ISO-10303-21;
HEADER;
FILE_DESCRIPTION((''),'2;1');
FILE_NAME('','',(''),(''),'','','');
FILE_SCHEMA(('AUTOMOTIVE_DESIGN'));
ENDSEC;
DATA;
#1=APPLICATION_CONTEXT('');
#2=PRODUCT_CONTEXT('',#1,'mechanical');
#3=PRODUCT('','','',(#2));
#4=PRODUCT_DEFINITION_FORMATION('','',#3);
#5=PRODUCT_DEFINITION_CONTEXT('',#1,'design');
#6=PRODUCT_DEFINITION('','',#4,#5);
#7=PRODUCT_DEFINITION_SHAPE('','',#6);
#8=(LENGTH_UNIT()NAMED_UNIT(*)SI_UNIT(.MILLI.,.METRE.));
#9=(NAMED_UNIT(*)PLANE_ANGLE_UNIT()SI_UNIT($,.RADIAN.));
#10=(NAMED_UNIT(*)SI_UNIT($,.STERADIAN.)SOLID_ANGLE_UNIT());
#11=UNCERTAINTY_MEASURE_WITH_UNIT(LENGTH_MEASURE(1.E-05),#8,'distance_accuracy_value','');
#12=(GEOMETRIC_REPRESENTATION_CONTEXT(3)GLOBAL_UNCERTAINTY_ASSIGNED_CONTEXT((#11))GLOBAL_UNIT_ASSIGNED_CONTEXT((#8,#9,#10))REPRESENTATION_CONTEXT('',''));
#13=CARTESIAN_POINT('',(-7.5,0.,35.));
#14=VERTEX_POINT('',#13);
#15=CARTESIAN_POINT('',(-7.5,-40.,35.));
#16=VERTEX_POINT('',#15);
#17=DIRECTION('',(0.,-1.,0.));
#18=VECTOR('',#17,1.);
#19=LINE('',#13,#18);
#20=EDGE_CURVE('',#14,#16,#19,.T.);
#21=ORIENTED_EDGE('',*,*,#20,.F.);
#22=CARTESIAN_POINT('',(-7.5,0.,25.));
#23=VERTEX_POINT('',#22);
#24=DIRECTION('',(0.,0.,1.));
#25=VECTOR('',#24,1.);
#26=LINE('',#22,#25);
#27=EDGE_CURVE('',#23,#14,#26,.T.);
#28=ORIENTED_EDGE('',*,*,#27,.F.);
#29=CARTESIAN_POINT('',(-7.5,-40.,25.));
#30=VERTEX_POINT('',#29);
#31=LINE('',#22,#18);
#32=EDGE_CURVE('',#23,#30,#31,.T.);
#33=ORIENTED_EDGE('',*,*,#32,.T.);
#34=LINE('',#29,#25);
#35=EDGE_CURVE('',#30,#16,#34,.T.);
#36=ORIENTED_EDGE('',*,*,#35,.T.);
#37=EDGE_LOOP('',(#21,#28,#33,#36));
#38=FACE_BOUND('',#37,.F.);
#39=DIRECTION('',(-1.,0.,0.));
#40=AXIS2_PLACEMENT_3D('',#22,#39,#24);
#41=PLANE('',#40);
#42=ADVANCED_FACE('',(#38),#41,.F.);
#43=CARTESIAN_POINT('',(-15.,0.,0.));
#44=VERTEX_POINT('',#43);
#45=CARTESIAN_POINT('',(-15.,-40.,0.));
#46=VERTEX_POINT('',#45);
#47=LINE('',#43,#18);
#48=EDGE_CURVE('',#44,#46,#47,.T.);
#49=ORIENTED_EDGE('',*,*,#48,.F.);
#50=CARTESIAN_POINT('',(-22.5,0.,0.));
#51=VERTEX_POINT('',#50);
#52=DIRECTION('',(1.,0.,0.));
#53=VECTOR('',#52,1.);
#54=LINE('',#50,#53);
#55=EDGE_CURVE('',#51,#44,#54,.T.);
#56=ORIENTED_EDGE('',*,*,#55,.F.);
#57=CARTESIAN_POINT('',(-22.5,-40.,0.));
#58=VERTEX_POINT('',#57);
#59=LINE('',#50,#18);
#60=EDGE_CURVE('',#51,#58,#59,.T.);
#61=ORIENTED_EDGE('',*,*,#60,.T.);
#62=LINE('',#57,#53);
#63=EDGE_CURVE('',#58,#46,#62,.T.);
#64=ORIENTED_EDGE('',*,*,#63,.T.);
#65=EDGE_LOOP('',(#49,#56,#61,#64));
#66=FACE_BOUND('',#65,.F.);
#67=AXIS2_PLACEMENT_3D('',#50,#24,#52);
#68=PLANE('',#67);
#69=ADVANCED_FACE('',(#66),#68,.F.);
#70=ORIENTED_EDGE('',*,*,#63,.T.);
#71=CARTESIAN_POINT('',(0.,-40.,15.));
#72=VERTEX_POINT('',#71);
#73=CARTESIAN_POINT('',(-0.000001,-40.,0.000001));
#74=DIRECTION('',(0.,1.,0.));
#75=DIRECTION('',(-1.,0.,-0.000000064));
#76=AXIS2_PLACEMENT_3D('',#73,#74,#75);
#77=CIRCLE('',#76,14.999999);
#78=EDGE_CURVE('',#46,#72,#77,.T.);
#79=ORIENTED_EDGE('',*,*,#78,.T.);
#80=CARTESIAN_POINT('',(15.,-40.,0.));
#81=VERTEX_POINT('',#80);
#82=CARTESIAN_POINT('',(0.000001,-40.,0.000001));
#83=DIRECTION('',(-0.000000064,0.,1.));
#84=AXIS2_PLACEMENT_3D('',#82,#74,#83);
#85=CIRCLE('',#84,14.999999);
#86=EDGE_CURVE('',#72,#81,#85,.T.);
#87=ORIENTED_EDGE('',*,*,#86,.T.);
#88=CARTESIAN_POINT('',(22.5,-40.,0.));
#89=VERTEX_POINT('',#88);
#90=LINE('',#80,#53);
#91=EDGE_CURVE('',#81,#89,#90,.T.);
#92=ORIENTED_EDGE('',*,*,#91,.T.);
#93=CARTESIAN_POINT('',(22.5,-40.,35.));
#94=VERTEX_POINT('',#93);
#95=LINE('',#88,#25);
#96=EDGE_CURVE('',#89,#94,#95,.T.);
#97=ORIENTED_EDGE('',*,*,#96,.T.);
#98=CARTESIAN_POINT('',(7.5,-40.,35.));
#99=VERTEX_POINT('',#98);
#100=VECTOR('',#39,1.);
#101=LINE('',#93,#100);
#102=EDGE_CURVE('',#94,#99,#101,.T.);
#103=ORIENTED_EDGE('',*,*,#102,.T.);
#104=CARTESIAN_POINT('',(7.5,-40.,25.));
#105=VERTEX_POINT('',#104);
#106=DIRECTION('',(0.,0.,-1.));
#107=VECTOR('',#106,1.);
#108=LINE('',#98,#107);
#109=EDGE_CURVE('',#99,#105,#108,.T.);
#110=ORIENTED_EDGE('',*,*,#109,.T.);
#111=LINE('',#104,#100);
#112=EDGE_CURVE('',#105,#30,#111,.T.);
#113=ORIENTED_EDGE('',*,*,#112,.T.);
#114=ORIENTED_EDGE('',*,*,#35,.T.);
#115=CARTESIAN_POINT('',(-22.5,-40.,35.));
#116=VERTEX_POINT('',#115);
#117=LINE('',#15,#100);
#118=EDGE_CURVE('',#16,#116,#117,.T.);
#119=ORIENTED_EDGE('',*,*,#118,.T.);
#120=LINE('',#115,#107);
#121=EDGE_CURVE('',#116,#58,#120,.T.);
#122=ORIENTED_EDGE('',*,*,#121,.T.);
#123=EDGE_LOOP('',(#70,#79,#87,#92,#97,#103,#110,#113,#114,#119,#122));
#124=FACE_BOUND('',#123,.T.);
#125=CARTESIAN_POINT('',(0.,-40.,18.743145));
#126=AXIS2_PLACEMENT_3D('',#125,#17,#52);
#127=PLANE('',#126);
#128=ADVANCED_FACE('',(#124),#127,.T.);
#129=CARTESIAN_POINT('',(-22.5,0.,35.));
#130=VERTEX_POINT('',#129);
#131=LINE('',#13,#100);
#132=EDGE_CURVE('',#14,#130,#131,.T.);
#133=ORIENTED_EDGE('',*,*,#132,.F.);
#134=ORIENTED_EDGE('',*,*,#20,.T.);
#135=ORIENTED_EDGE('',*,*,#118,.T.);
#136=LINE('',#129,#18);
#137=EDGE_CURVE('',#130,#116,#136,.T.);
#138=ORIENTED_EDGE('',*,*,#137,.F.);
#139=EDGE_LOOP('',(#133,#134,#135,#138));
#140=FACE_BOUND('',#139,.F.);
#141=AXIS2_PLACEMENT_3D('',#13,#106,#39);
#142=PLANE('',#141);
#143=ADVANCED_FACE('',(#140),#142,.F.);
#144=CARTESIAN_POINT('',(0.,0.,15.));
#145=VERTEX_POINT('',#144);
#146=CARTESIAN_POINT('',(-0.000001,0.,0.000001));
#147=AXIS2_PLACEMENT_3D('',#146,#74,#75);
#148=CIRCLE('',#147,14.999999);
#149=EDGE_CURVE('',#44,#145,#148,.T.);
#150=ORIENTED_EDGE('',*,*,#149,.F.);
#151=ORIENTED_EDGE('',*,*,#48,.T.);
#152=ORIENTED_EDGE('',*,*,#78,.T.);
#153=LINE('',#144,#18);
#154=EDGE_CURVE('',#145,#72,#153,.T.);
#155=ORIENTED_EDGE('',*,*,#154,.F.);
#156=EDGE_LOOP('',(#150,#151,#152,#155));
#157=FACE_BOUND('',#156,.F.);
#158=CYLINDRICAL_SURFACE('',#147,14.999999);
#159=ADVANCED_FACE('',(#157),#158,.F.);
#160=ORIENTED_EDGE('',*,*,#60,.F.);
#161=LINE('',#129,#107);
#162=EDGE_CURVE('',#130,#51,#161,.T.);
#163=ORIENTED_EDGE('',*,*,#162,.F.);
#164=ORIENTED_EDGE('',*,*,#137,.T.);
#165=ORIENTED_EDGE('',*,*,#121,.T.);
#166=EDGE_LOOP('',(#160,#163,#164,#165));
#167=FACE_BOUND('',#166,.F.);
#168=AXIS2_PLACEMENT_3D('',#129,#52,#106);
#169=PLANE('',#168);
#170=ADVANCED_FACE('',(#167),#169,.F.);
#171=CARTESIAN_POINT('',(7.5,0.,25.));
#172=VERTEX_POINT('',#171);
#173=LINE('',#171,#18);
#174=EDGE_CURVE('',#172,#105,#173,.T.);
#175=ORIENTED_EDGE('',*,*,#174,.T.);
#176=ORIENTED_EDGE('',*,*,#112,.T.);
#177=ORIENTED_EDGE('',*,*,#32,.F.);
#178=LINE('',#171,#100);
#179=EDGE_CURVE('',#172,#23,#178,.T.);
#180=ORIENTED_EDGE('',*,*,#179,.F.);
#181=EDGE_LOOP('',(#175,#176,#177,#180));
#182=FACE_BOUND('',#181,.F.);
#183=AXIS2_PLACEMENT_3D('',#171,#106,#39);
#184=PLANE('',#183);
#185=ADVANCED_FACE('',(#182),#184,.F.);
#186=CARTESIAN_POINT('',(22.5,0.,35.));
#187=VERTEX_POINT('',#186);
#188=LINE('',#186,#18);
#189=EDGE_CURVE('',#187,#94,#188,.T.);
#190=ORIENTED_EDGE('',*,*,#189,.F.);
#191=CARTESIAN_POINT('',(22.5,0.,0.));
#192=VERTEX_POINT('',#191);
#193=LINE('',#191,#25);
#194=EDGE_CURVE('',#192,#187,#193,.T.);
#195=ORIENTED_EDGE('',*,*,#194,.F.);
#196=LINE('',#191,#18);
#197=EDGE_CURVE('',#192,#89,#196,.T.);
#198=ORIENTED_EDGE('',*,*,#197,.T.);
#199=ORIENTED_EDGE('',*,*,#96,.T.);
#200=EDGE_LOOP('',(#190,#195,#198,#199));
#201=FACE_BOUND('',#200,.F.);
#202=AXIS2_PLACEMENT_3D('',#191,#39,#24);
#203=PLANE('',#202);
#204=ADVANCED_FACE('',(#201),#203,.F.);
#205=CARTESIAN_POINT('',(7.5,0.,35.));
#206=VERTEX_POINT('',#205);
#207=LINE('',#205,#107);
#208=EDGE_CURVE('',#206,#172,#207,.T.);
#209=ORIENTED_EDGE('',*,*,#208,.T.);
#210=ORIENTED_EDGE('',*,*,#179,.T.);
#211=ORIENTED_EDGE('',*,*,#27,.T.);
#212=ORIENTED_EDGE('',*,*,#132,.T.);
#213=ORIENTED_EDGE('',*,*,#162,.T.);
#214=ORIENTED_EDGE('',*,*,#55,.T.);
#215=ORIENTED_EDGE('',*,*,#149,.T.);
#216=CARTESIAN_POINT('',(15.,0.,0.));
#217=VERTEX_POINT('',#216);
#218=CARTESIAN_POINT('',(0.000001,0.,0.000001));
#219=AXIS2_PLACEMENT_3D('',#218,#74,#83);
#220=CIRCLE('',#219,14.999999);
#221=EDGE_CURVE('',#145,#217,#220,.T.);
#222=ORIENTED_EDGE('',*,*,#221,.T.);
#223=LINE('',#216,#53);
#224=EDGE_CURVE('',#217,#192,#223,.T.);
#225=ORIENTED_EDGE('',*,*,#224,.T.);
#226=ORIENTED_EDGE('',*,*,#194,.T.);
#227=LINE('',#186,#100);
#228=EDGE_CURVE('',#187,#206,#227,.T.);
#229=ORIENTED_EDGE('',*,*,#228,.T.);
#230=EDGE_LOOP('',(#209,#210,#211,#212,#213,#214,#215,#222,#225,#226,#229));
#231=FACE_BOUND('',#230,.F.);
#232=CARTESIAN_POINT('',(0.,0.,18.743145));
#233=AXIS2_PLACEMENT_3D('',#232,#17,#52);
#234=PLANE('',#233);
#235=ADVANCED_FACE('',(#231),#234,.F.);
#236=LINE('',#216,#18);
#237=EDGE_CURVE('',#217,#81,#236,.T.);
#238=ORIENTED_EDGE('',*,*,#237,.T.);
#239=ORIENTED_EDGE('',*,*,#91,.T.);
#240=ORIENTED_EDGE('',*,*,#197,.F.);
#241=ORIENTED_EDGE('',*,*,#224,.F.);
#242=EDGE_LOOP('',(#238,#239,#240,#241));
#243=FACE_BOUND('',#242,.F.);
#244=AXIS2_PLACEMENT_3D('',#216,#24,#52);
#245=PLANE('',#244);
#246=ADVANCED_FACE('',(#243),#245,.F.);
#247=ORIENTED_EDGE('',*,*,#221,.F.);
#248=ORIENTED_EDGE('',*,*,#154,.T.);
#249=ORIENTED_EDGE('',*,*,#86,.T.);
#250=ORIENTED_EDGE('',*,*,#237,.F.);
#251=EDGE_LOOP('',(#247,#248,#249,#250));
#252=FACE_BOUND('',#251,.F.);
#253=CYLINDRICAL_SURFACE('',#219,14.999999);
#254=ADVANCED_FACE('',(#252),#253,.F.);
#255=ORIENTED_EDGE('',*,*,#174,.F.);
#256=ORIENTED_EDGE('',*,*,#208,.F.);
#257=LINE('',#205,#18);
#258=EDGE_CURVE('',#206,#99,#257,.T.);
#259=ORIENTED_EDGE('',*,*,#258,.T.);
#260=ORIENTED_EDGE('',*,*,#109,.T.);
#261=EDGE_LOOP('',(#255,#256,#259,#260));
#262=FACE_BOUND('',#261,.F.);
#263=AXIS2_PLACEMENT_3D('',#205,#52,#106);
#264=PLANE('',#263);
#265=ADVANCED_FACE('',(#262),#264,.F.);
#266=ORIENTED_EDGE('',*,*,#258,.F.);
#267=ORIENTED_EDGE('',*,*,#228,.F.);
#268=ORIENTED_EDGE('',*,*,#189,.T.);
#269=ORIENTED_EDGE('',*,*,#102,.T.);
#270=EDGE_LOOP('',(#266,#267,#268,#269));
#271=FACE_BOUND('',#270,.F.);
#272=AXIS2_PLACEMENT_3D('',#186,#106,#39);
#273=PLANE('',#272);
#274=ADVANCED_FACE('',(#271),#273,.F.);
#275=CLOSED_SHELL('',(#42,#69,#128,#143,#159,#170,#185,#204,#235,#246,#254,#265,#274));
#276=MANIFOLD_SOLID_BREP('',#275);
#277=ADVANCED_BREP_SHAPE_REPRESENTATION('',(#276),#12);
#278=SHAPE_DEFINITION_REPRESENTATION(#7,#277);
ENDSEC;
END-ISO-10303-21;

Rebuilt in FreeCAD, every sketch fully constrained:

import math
import FreeCAD as App
import Part
import Sketcher
from FreeCAD import Vector
Q = App.Units.Quantity

doc = App.newDocument("Part")
params = doc.addObject("Spreadsheet::Sheet", "Params")
for row, (alias, value) in enumerate([
    ("sketch1_radius", "14.999999 mm"),
    ("sketch1_width", "15 mm"),
    ("sketch1_height", "35 mm"),
    ("sketch1_height2", "10 mm"),
    ("pad1_length", "40 mm"),
], start=1):
    params.set(f"A{row}", alias)
    params.set(f"B{row}", "=" + value)
    params.setAlias(f"B{row}", alias)

body = doc.addObject("PartDesign::Body", "Body")

sketch1 = body.newObject("Sketcher::SketchObject", "Sketch")
sketch1.AttachmentSupport = (doc.getObject("XZ_Plane"), [""])
sketch1.MapMode = "FlatFace"
sketch1.addGeometry(Part.LineSegment(Vector(-22, 0, 0), Vector(-15, 0, 0)), False)
sketch1.addGeometry(Part.ArcOfCircle(Part.Circle(Vector(0, 0, 0), Vector(0, 0, 1), 15), math.radians(90), math.radians(180)), False)
sketch1.addGeometry(Part.ArcOfCircle(Part.Circle(Vector(0, 0, 0), Vector(0, 0, 1), 15), math.radians(0), math.radians(90)), False)
sketch1.addGeometry(Part.LineSegment(Vector(15, 0, 0), Vector(22, 0, 0)), False)
sketch1.addGeometry(Part.LineSegment(Vector(22, 0, 0), Vector(22, 35, 0)), False)
sketch1.addGeometry(Part.LineSegment(Vector(22, 35, 0), Vector(8, 35, 0)), False)
sketch1.addGeometry(Part.LineSegment(Vector(8, 35, 0), Vector(8, 25, 0)), False)
sketch1.addGeometry(Part.LineSegment(Vector(8, 25, 0), Vector(-8, 25, 0)), False)
sketch1.addGeometry(Part.LineSegment(Vector(-8, 25, 0), Vector(-8, 35, 0)), False)
sketch1.addGeometry(Part.LineSegment(Vector(-8, 35, 0), Vector(-22, 35, 0)), False)
sketch1.addGeometry(Part.LineSegment(Vector(-22, 35, 0), Vector(-22, 0, 0)), False)
sketch1.addConstraint(Sketcher.Constraint("Coincident", 0, 2, 1, 2))
sketch1.addConstraint(Sketcher.Constraint("Tangent", 1, 1, 2, 2))
sketch1.addConstraint(Sketcher.Constraint("Coincident", 2, 1, 3, 1))
sketch1.addConstraint(Sketcher.Constraint("Coincident", 3, 2, 4, 1))
sketch1.addConstraint(Sketcher.Constraint("Coincident", 4, 2, 5, 1))
sketch1.addConstraint(Sketcher.Constraint("Coincident", 5, 2, 6, 1))
sketch1.addConstraint(Sketcher.Constraint("Coincident", 6, 2, 7, 1))
sketch1.addConstraint(Sketcher.Constraint("Coincident", 7, 2, 8, 1))
sketch1.addConstraint(Sketcher.Constraint("Coincident", 8, 2, 9, 1))
sketch1.addConstraint(Sketcher.Constraint("Coincident", 9, 2, 10, 1))
sketch1.addConstraint(Sketcher.Constraint("Coincident", 10, 2, 0, 1))
sketch1.addConstraint(Sketcher.Constraint("Horizontal", 0))
sketch1.addConstraint(Sketcher.Constraint("Horizontal", 3))
sketch1.addConstraint(Sketcher.Constraint("Vertical", 4))
sketch1.addConstraint(Sketcher.Constraint("Horizontal", 5))
sketch1.addConstraint(Sketcher.Constraint("Vertical", 6))
sketch1.addConstraint(Sketcher.Constraint("Horizontal", 7))
sketch1.addConstraint(Sketcher.Constraint("Vertical", 8))
sketch1.addConstraint(Sketcher.Constraint("Horizontal", 9))
sketch1.addConstraint(Sketcher.Constraint("Vertical", 10))
sketch1.addConstraint(Sketcher.Constraint("Coincident", 1, 3, -1, 1))
sketch1.addConstraint(Sketcher.Constraint("Equal", 1, 2))
sketch1.addConstraint(Sketcher.Constraint("Symmetric", 3, 2, 10, 2, -1, 1))
sketch1.addConstraint(Sketcher.Constraint("Symmetric", 5, 2, 8, 2, -2))
sketch1.addConstraint(Sketcher.Constraint("PointOnObject", 0, 2, -1))
sketch1.addConstraint(Sketcher.Constraint("PointOnObject", 1, 1, -2))
sketch1.addConstraint(Sketcher.Constraint("Equal", 5, 7))
sketch1.addConstraint(Sketcher.Constraint("Radius", 1, Q("14.999999 mm")))
sketch1.addConstraint(Sketcher.Constraint("DistanceX", 5, 2, 5, 1, Q("15 mm")))
sketch1.addConstraint(Sketcher.Constraint("DistanceY", 4, 1, 4, 2, Q("35 mm")))
sketch1.addConstraint(Sketcher.Constraint("DistanceY", 6, 2, 6, 1, Q("10 mm")))
sketch1.setExpression("Constraints[27]", "Params.sketch1_radius")
sketch1.setExpression("Constraints[28]", "Params.sketch1_width")
sketch1.setExpression("Constraints[29]", "Params.sketch1_height")
sketch1.setExpression("Constraints[30]", "Params.sketch1_height2")
pad1 = body.newObject("PartDesign::Pad", "Pad")
pad1.Profile = sketch1
pad1.setExpression("Length", "Params.pad1_length")

doc.recompute()
